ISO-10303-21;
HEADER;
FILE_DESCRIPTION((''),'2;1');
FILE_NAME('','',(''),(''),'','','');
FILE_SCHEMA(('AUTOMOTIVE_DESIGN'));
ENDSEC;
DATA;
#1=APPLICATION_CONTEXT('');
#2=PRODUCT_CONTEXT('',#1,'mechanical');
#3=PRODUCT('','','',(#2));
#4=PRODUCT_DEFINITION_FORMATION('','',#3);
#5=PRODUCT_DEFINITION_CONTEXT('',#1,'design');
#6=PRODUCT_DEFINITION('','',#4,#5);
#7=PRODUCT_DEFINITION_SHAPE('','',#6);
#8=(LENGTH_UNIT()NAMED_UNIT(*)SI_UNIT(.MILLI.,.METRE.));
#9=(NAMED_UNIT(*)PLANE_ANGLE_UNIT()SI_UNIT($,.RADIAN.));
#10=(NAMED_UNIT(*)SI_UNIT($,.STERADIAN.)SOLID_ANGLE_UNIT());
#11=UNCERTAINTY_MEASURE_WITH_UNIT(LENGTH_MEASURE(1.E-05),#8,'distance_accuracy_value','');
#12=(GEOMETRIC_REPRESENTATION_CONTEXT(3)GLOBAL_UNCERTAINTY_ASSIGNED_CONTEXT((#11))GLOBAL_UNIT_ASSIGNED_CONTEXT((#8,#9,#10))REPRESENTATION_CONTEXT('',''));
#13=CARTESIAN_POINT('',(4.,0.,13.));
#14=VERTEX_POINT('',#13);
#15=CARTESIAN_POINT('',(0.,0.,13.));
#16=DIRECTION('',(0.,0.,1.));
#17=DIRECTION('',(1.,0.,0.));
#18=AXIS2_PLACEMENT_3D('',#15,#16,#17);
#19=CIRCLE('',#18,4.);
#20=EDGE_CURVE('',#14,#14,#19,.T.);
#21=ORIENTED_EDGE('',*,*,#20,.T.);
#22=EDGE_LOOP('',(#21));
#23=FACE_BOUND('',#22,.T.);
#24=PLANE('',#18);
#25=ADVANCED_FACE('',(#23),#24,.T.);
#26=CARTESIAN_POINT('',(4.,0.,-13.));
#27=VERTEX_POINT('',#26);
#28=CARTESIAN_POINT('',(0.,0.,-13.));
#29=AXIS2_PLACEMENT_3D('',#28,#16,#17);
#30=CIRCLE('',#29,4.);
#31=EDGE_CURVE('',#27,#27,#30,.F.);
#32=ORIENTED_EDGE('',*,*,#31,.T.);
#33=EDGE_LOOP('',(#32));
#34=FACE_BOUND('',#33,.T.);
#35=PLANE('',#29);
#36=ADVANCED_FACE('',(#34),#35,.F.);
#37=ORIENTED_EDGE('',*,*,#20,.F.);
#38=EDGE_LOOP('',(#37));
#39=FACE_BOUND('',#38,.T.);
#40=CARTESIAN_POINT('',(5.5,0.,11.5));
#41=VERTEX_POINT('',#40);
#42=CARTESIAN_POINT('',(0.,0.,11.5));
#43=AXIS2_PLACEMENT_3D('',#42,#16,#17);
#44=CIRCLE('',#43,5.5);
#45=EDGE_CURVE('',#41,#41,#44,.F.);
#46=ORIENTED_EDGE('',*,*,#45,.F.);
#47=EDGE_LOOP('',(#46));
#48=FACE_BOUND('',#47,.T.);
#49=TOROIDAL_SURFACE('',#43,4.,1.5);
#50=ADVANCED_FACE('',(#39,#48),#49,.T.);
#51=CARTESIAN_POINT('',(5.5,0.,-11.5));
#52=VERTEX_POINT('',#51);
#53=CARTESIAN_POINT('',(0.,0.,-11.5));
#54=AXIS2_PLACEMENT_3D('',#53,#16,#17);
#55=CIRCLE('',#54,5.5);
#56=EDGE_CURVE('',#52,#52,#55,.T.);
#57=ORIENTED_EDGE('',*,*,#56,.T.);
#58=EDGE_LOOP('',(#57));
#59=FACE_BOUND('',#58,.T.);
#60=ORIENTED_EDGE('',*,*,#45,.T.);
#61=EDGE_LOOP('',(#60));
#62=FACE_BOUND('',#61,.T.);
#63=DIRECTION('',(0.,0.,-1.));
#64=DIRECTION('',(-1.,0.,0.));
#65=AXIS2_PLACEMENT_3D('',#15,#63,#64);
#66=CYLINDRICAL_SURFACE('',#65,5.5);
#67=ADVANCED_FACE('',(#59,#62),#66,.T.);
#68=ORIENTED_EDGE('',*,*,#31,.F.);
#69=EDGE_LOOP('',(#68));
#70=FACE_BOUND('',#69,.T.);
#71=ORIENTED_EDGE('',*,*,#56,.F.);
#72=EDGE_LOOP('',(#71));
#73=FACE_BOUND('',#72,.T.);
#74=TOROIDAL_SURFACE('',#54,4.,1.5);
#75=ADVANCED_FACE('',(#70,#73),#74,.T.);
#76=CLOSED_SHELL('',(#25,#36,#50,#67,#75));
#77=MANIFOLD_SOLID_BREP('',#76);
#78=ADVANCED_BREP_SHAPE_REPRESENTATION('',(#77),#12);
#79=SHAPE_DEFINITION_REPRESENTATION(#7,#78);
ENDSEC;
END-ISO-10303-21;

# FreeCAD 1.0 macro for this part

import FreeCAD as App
import Part
import Sketcher
Q = App.Units.Quantity


def edges_at(feature, points):
    """Names of the edges that pass closest to the given points."""
    edges = feature.Shape.Edges
    near = lambda p: min(range(len(edges)), key=lambda i: edges[i].distToShape(Part.Vertex(*p))[0])
    return sorted({f"Edge{near(p) + 1}" for p in points})

doc = App.newDocument("Part")
params = doc.addObject("Spreadsheet::Sheet", "Params")
for row, (alias, value) in enumerate([
    ("sketch1_diameter", "11 mm"),
    ("pad1_length", "26 mm"),
    ("fillet_radius", "1.5 mm"),
], start=1):
    params.set(f"A{row}", alias)
    params.set(f"B{row}", "=" + value)
    params.setAlias(f"B{row}", alias)

body = doc.addObject("PartDesign::Body", "Body")

# Sketch on XY plane
sketch1 = body.newObject("Sketcher::SketchObject", "Sketch")
sketch1.AttachmentSupport = (doc.getObject("XY_Plane"), [""])
sketch1.MapMode = "FlatFace"
sketch1.addGeometry(Part.Circle(App.Vector(0, 0, 0), App.Vector(0, 0, 1), 6), False)
sketch1.addConstraint(Sketcher.Constraint("Coincident", 0, 3, -1, 1))
sketch1.addConstraint(Sketcher.Constraint("Diameter", 0, Q("11 mm")))
sketch1.setExpression("Constraints[1]", "Params.sketch1_diameter")
pad1 = body.newObject("PartDesign::Pad", "Pad")
pad1.Profile = sketch1
pad1.setExpression("Length", "Params.pad1_length")
pad1.Midplane = True
doc.recompute()

fillet = body.newObject("PartDesign::Fillet", "Fillet")
fillet.Base = (pad1, edges_at(pad1, [(-5.5, 0, -13), (-5.5, 0, 13)]))
fillet.setExpression("Radius", "Params.fillet_radius")

doc.recompute()
